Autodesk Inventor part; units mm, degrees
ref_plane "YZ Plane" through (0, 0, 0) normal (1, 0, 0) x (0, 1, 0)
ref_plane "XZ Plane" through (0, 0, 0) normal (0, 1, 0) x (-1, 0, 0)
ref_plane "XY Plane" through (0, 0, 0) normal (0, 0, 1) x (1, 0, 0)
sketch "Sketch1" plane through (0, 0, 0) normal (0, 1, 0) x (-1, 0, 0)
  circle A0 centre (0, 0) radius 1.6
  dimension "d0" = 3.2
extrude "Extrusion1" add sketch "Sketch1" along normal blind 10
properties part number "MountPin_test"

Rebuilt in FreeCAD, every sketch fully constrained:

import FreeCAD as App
import Part
import Sketcher
from FreeCAD import Vector

doc = App.newDocument("Part")
body = doc.addObject("PartDesign::Body", "Body")

# Sketch on XZ plane
sketch1 = doc.addObject("Sketcher::SketchObject", "Sketch")
body.addObject(sketch1)
sketch1.AttachmentSupport = (doc.XZ_Plane, [""])
sketch1.MapMode = "FlatFace"
sketch1.addGeometry(Part.Circle(Vector(0, 0, 0), Vector(0, 0, 1), 1.6), False)
sketch1.addConstraint([
    Sketcher.Constraint("Coincident", 0, 3, -1, 1),
    Sketcher.Constraint("Diameter", 0, 3.2),
])
pad1 = doc.addObject("PartDesign::Pad", "Pad")
body.addObject(pad1)
pad1.Profile = sketch1
pad1.Length = 10
pad1.Reversed = True

doc.recompute()
